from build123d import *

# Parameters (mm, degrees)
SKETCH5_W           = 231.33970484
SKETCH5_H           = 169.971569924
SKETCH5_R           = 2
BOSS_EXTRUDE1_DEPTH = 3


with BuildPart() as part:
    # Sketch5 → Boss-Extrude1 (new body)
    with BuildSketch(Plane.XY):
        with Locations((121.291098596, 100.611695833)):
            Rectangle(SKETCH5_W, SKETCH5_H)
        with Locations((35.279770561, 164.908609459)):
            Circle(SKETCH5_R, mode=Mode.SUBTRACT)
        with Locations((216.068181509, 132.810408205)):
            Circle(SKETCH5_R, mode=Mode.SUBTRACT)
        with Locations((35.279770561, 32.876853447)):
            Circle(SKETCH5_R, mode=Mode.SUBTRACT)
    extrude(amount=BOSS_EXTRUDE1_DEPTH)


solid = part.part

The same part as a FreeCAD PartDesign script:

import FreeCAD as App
import Part
import Sketcher
Q = App.Units.Quantity

doc = App.newDocument("Part")
body = doc.addObject("PartDesign::Body", "Body")

# Sketch on XY plane
sketch1 = body.newObject("Sketcher::SketchObject", "Sketch")
sketch1.AttachmentSupport = (doc.getObject("XY_Plane"), [""])
sketch1.MapMode = "FlatFace"
sketch1.addGeometry([
    Part.LineSegment(App.Vector(5.6, 185.6, 0), App.Vector(5.6, 15.6, 0)),  # 0
    Part.LineSegment(App.Vector(5.6, 15.6, 0), App.Vector(237, 15.6, 0)),  # 1
    Part.LineSegment(App.Vector(237, 15.6, 0), App.Vector(237, 185.6, 0)),  # 2
    Part.LineSegment(App.Vector(237, 185.6, 0), App.Vector(5.6, 185.6, 0)),  # 3
    Part.Circle(App.Vector(35.3, 32.9, 0), App.Vector(0, 0, 1), 2),  # 4
    Part.Circle(App.Vector(35.3, 164.9, 0), App.Vector(0, 0, 1), 2),  # 5
    Part.Circle(App.Vector(216.1, 132.8, 0), App.Vector(0, 0, 1), 2),  # 6
], False)
sketch1.addConstraint([
    Sketcher.Constraint("Coincident", 0, 2, 1, 1),
    Sketcher.Constraint("Coincident", 1, 2, 2, 1),
    Sketcher.Constraint("Coincident", 2, 2, 3, 1),
    Sketcher.Constraint("Coincident", 3, 2, 0, 1),
    Sketcher.Constraint("Vertical", 0),
    Sketcher.Constraint("Horizontal", 1),
    Sketcher.Constraint("Vertical", 2),
    Sketcher.Constraint("Horizontal", 3),
    Sketcher.Constraint("Equal", 4, 5),
    Sketcher.Constraint("Equal", 5, 6),
    Sketcher.Constraint("Vertical", 4, 3, 5, 3),
    Sketcher.Constraint("Diameter", 4, Q("4 mm")),
    Sketcher.Constraint("DistanceY", 0, 2, 0, 1, Q("169.97157 mm")),
    Sketcher.Constraint("DistanceY", 6, 3, 5, 3, Q("32.098201 mm")),
    Sketcher.Constraint("DistanceY", 0, 2, 5, 3, Q("149.282699 mm")),
    Sketcher.Constraint("DistanceX", 1, 1, 1, 2, Q("231.339705 mm")),
    Sketcher.Constraint("DistanceX", -1, 1, 4, 3, Q("35.279771 mm")),
    Sketcher.Constraint("DistanceY", -1, 1, 5, 3, Q("164.908609 mm")),
    Sketcher.Constraint("DistanceX", -1, 1, 6, 3, Q("216.068182 mm")),
    Sketcher.Constraint("DistanceX", -1, 1, 1, 2, Q("236.960951 mm")),
    Sketcher.Constraint("DistanceY", -1, 1, 4, 3, Q("32.876853 mm")),
])
pad1 = body.newObject("PartDesign::Pad", "Pad")
pad1.Profile = sketch1
pad1.Length = 3

doc.recompute()
